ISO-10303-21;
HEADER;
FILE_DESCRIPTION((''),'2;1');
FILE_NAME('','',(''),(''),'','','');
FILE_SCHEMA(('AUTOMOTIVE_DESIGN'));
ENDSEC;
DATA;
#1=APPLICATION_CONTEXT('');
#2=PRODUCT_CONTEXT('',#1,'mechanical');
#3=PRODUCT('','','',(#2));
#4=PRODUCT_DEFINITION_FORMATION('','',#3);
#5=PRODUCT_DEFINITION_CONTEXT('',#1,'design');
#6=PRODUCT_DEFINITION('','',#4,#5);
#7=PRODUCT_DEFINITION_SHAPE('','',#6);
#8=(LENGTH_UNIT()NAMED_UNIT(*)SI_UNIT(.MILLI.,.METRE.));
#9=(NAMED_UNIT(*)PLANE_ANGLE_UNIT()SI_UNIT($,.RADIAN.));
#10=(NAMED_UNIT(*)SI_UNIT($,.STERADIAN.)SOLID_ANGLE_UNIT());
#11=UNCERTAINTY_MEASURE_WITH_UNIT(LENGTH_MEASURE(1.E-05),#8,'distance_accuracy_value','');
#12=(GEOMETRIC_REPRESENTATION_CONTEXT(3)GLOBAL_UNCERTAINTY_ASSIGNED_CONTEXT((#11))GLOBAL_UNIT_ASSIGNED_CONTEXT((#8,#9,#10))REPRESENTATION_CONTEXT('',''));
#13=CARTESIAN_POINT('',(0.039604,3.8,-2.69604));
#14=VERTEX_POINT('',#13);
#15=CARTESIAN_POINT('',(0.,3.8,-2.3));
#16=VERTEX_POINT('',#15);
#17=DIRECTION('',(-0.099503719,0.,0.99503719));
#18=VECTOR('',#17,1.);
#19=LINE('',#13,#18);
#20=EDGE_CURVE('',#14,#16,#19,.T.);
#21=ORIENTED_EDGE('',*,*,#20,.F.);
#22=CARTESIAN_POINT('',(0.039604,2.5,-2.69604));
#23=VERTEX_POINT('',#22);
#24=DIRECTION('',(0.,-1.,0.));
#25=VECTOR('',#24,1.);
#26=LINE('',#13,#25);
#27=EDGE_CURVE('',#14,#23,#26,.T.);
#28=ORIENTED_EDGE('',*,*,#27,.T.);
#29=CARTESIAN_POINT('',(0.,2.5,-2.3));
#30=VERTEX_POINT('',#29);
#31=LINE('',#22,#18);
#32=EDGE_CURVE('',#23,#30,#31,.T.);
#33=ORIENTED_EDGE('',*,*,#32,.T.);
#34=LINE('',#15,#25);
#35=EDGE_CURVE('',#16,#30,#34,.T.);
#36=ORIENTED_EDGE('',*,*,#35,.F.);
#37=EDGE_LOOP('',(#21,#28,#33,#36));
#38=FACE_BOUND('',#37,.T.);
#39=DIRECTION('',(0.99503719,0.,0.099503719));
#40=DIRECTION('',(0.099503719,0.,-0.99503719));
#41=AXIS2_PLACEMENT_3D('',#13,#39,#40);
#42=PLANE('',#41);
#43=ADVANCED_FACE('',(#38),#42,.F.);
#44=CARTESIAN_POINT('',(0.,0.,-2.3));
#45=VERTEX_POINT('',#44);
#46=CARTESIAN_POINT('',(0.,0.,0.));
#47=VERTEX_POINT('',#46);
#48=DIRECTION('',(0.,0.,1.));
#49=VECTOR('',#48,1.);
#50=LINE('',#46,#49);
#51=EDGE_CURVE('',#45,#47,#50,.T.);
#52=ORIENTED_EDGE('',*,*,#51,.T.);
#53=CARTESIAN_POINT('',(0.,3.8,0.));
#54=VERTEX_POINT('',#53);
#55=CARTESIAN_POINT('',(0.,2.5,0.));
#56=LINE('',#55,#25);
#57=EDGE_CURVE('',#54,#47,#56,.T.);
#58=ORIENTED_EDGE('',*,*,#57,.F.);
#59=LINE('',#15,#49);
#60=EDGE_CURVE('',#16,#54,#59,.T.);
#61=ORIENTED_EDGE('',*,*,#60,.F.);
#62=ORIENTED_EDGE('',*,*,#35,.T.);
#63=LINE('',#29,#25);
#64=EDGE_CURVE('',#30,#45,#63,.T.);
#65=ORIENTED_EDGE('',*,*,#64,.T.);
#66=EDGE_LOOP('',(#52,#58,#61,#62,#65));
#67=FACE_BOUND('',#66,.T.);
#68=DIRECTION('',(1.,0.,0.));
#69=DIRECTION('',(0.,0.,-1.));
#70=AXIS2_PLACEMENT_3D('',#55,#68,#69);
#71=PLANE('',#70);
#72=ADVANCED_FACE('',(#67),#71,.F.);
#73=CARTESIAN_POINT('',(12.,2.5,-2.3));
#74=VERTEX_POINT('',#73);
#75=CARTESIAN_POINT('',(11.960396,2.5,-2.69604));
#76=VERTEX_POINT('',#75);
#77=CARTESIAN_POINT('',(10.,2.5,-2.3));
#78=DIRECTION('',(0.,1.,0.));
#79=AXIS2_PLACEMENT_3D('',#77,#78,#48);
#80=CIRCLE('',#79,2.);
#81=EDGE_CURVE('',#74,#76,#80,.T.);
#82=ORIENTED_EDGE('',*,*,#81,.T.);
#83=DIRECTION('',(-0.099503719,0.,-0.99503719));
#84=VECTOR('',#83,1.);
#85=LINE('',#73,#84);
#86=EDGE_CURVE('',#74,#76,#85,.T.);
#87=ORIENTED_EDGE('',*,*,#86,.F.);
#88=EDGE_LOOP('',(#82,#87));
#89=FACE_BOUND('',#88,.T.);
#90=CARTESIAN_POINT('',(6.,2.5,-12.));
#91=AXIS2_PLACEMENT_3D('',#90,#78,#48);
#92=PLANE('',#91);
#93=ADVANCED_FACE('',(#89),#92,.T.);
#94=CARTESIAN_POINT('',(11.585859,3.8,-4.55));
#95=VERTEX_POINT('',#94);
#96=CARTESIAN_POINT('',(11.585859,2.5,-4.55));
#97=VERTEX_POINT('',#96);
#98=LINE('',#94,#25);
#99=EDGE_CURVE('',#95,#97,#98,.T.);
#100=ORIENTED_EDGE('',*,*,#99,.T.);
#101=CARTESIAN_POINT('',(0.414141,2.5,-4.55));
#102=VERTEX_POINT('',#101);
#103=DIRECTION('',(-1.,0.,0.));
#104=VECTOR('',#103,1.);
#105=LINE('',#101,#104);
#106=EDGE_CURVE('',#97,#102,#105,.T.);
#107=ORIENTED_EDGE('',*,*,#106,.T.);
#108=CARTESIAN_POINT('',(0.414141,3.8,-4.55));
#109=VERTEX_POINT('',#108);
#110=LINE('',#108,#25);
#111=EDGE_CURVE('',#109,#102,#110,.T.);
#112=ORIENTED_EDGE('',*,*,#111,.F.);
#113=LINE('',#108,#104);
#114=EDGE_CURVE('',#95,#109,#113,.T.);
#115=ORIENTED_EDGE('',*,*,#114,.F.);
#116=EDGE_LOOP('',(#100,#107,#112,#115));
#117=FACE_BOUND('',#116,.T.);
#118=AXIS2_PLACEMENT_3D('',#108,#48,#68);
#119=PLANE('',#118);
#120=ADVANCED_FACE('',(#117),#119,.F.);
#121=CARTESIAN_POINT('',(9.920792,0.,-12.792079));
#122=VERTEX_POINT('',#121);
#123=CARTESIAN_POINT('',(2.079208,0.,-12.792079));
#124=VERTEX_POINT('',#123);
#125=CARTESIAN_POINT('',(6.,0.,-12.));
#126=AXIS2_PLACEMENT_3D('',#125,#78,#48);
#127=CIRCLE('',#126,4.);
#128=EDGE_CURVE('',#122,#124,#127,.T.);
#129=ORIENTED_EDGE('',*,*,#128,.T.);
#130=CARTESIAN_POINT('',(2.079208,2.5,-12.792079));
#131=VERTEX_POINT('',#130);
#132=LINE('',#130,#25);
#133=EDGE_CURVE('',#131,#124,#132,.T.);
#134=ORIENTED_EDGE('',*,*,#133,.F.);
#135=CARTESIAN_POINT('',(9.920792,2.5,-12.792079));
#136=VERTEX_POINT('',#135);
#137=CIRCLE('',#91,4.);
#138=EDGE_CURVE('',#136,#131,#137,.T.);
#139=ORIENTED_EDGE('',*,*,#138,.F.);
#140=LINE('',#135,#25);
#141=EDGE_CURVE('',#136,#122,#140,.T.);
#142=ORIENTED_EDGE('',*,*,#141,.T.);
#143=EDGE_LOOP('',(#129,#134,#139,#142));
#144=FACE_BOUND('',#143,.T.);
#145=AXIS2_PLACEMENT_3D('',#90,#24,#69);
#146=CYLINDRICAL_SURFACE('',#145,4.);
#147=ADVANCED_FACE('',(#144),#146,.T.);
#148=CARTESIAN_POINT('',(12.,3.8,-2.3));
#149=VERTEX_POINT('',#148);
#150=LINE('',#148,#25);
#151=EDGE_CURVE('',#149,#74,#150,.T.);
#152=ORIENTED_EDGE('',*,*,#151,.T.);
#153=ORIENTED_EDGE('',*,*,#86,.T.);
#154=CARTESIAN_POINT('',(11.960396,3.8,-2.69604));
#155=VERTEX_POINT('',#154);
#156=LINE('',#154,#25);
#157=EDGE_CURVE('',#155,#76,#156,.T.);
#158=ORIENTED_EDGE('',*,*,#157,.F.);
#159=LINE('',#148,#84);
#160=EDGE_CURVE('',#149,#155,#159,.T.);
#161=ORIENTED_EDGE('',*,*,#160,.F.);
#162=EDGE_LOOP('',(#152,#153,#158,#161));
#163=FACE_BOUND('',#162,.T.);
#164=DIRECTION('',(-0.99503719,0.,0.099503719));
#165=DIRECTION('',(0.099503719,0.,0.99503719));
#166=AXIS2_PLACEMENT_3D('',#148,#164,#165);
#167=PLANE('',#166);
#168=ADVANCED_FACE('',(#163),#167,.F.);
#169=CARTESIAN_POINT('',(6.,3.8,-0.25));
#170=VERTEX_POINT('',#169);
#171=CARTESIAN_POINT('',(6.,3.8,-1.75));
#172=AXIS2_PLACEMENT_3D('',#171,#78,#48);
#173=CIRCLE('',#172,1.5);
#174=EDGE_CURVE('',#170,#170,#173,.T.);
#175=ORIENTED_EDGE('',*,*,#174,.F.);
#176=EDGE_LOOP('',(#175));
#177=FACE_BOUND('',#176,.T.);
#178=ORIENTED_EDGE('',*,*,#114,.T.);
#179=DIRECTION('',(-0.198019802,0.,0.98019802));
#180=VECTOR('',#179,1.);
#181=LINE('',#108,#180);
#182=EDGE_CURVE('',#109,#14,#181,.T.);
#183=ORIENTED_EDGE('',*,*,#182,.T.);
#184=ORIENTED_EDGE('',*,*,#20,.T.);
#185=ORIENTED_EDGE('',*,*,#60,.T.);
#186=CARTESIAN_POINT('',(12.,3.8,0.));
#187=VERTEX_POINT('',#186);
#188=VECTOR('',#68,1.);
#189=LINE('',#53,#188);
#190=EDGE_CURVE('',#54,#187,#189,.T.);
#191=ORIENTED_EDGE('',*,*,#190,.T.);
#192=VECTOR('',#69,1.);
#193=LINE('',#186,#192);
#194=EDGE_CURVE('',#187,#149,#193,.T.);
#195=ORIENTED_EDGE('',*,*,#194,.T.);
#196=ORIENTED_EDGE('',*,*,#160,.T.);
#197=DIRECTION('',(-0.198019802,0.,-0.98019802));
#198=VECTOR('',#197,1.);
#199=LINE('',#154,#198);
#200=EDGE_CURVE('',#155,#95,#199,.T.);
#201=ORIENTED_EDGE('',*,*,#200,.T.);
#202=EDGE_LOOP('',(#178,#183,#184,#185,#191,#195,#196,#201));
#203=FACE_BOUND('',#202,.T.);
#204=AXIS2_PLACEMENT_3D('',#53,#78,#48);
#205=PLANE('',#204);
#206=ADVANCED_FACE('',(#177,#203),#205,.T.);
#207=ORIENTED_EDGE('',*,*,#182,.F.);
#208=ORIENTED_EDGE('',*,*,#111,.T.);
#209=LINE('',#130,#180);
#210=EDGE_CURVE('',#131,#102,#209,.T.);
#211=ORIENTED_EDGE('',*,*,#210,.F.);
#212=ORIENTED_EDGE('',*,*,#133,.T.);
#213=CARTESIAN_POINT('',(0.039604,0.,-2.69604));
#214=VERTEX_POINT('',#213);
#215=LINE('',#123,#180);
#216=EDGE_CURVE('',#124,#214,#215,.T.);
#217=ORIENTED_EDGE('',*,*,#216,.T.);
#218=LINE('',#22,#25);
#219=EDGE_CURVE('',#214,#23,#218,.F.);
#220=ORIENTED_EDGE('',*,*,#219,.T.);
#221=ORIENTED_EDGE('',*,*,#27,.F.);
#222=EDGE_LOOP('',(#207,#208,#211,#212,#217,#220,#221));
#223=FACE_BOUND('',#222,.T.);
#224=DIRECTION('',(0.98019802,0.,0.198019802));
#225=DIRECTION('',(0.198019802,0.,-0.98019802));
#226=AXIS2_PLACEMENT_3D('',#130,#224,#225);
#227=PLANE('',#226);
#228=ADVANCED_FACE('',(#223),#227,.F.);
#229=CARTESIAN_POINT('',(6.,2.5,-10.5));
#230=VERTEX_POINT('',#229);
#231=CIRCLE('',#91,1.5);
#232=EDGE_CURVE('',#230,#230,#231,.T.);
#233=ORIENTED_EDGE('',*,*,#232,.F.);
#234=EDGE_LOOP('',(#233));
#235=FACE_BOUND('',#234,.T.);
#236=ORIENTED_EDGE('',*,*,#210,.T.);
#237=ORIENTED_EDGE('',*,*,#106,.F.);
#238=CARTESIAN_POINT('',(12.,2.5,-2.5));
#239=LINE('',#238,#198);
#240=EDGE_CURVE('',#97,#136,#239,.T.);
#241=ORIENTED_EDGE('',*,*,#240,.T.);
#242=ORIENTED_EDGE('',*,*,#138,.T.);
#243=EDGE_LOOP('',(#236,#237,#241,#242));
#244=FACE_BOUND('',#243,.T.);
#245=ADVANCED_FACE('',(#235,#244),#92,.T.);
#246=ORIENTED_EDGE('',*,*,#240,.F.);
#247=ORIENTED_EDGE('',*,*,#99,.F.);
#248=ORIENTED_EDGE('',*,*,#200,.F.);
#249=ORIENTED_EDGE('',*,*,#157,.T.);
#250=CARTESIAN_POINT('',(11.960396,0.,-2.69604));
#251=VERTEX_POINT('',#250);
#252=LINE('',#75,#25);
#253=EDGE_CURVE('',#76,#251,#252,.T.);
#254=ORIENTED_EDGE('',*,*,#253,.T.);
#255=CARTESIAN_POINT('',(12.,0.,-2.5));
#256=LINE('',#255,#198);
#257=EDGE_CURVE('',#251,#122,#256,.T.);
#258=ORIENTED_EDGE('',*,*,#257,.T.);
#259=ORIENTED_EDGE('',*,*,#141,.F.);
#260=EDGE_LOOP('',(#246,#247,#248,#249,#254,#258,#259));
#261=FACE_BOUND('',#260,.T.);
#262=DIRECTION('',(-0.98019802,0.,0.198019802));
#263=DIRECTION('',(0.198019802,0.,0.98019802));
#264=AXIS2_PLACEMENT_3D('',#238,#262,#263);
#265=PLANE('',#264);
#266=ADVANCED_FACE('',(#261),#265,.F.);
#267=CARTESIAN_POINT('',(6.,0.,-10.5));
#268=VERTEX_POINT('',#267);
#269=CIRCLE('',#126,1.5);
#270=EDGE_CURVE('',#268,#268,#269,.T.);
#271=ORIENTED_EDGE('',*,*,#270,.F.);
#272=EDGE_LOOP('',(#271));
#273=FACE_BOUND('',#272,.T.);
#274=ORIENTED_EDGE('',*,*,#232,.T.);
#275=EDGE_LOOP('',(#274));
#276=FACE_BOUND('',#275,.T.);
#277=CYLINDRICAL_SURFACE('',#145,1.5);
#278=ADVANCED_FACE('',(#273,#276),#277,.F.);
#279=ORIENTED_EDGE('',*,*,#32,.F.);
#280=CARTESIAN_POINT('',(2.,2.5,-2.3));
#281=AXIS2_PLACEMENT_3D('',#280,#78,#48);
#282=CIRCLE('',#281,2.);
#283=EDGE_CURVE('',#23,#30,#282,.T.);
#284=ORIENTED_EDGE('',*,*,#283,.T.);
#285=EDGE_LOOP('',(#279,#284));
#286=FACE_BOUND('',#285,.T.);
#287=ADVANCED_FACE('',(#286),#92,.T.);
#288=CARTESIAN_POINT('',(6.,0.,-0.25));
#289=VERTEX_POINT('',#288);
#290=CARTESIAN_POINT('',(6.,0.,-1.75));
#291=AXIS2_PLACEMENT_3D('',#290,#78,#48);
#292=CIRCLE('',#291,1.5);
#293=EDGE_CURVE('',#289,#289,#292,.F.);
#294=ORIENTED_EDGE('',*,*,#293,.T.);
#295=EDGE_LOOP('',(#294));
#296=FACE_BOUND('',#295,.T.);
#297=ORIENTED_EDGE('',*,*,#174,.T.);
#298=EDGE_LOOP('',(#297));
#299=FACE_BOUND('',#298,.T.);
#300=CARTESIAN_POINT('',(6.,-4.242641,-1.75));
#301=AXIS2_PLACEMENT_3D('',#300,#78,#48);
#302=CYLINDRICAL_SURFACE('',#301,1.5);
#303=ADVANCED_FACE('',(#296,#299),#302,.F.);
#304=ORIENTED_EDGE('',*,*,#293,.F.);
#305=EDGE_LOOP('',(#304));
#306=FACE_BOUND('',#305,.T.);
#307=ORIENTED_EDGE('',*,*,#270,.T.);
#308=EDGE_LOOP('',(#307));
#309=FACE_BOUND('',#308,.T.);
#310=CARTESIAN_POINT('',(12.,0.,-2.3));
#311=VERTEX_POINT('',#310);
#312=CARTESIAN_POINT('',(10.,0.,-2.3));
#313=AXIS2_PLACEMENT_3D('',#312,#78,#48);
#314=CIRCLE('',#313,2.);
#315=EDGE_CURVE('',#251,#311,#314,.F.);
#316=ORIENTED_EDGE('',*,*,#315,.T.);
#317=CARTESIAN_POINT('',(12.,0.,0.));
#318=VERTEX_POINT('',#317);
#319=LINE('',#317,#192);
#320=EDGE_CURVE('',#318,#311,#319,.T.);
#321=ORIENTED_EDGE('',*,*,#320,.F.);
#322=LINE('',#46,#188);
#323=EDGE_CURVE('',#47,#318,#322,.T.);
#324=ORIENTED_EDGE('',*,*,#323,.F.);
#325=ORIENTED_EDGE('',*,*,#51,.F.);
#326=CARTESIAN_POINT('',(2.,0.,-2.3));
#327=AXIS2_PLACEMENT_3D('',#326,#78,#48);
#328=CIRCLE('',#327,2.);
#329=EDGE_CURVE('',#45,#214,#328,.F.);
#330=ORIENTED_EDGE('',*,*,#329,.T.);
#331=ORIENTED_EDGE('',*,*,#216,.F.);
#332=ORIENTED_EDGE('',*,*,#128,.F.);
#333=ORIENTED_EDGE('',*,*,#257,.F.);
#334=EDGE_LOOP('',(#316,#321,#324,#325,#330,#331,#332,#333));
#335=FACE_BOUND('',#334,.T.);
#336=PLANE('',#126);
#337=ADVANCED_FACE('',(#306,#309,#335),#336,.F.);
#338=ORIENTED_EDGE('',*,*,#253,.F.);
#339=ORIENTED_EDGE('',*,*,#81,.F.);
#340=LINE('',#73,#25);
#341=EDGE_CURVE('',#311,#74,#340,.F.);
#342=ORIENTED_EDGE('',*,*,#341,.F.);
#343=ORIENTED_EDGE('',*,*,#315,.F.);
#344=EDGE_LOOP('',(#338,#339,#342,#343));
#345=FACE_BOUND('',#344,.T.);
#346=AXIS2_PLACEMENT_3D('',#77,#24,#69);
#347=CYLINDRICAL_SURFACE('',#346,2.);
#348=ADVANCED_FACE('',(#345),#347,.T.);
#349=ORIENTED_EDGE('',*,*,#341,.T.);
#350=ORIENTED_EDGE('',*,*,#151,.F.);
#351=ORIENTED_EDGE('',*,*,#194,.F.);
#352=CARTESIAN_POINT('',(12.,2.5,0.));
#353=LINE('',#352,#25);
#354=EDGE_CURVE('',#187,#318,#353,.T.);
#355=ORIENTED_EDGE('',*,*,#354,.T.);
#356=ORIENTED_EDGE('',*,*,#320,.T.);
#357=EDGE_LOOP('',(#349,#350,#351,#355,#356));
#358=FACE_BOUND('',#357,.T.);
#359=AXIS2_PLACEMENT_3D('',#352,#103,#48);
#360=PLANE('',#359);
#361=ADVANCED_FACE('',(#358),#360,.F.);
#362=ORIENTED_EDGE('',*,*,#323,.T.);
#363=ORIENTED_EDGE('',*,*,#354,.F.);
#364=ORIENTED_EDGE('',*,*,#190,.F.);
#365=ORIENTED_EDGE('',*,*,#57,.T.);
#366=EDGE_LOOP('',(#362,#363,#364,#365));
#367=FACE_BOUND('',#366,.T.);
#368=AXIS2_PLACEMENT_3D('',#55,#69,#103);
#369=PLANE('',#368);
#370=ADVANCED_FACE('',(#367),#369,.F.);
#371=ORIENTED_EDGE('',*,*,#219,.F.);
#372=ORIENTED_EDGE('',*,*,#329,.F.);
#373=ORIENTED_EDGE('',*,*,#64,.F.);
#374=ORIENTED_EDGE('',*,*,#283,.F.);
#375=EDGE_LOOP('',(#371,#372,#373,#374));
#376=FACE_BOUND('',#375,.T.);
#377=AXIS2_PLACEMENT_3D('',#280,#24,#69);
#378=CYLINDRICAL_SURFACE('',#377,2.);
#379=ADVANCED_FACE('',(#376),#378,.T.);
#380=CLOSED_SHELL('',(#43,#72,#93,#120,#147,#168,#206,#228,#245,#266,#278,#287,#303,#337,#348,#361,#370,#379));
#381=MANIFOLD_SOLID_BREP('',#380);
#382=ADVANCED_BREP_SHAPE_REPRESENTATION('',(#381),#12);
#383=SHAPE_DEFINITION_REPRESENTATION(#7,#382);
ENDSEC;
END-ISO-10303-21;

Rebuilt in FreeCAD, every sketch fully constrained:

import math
import FreeCAD as App
import Part
import Sketcher
from FreeCAD import Vector
Q = App.Units.Quantity


def edges_at(feature, points):
    """Names of the edges that pass closest to the given points."""
    edges = feature.Shape.Edges
    near = lambda p: min(range(len(edges)), key=lambda i: edges[i].distToShape(Part.Vertex(*p))[0])
    return sorted({f"Edge{near(p) + 1}" for p in points})


def add_polygon(sketch, points):
    """Adds a closed chain of lines whose ends are joined by coincident constraints."""
    first, n = sketch.GeometryCount, len(points)
    for a, b in zip(points, points[1:] + points[:1]):
        sketch.addGeometry(Part.LineSegment(App.Vector(*a, 0), App.Vector(*b, 0)), False)
    for i in range(n):
        sketch.addConstraint(Sketcher.Constraint("Coincident", first + i, 2, first + (i + 1) % n, 1))

doc = App.newDocument("Part")
params = doc.addObject("Spreadsheet::Sheet", "Params")
for row, (alias, value) in enumerate([
    ("sketch1_diameter", "3 mm"),
    ("sketch1_radius", "4 mm"),
    ("sketch1_width", "12 mm"),
    ("sketch1_height", "2.5 mm"),
    ("pad1_length", "2.5 mm"),
    ("fillet_radius", "2 mm"),
    ("sketch2_width", "12 mm"),
    ("sketch2_height", "2.3 mm"),
    ("pad2_length", "1.3 mm"),
    ("sketch3_diameter", "3 mm"),
    ("pocket1_length", "3.8 mm"),
], start=1):
    params.set(f"A{row}", alias)
    params.set(f"B{row}", "=" + value)
    params.setAlias(f"B{row}", alias)

body = doc.addObject("PartDesign::Body", "Body")

sketch1 = doc.addObject("Sketcher::SketchObject", "Sketch")
body.addObject(sketch1)
sketch1.AttachmentSupport = (doc.XZ_Plane, [""])
sketch1.MapMode = "FlatFace"
sketch1.addGeometry([
    Part.LineSegment(Vector(2.1, -12.8, 0), Vector(0, -2.5, 0)),
    Part.LineSegment(Vector(0, -2.5, 0), Vector(0, 0, 0)),
    Part.LineSegment(Vector(0, 0, 0), Vector(12, 0, 0)),
    Part.LineSegment(Vector(12, 0, 0), Vector(12, -2.5, 0)),
    Part.LineSegment(Vector(12, -2.5, 0), Vector(9.9, -12.8, 0)),
    Part.ArcOfCircle(Part.Circle(Vector(6, -12, 0), Vector(0, 0, 1), 4), math.radians(-169), math.radians(-11)),
    Part.Circle(Vector(6, -12, 0), Vector(0, 0, 1), 1.5),
], False)
sketch1.addConstraint([
    Sketcher.Constraint("Coincident", 0, 2, 1, 1),
    Sketcher.Constraint("Coincident", 1, 2, 2, 1),
    Sketcher.Constraint("Coincident", 2, 2, 3, 1),
    Sketcher.Constraint("Coincident", 3, 2, 4, 1),
    Sketcher.Constraint("Tangent", 4, 2, 5, 2),
    Sketcher.Constraint("Tangent", 5, 1, 0, 1),
    Sketcher.Constraint("Vertical", 1),
    Sketcher.Constraint("Horizontal", 2),
    Sketcher.Constraint("Vertical", 3),
    Sketcher.Constraint("Coincident", 1, 2, -1, 1),
    Sketcher.Constraint("Coincident", 6, 3, 5, 3),
    Sketcher.Constraint("Horizontal", 0, 2, 3, 2),
    Sketcher.Constraint("Horizontal", 4, 2, 5, 1),
    Sketcher.Constraint("Diameter", 6, Q("3 mm")),
    Sketcher.Constraint("Radius", 5, Q("4 mm")),
    Sketcher.Constraint("DistanceX", 2, 1, 2, 2, Q("12 mm")),
    Sketcher.Constraint("DistanceY", 1, 1, 1, 2, Q("2.5 mm")),
    Sketcher.Constraint("DistanceY", 5, 3, -1, 1, Q("12 mm")),
])
sketch1.setExpression("Constraints[13]", "Params.sketch1_diameter")
sketch1.setExpression("Constraints[14]", "Params.sketch1_radius")
sketch1.setExpression("Constraints[15]", "Params.sketch1_width")
sketch1.setExpression("Constraints[16]", "Params.sketch1_height")
pad1 = doc.addObject("PartDesign::Pad", "Pad")
body.addObject(pad1)
pad1.Profile = sketch1
pad1.setExpression("Length", "Params.pad1_length")
pad1.Reversed = True
doc.recompute()

fillet = doc.addObject("PartDesign::Fillet", "Fillet")
body.addObject(fillet)
fillet.Base = (pad1, edges_at(pad1, [(0, 1.25, -2.5), (12, 1.25, -2.5)]))
fillet.setExpression("Radius", "Params.fillet_radius")

sketch2 = doc.addObject("Sketcher::SketchObject", "Sketch001")
body.addObject(sketch2)
sketch2.AttachmentSupport = (doc.XZ_Plane, [""])
sketch2.MapMode = "FlatFace"
sketch2.AttachmentOffset = App.Placement(Vector(0, 0, -2.5), App.Rotation())
add_polygon(sketch2, [(11.59, -4.55), (0.41, -4.55), (0.04, -2.7), (0, -2.3), (0, 0), (12, 0), (12, -2.3), (11.96, -2.7)])
sketch2.addConstraint([
    Sketcher.Constraint("Horizontal", 0),
    Sketcher.Constraint("Vertical", 3),
    Sketcher.Constraint("Horizontal", 4),
    Sketcher.Constraint("Vertical", 5),
    Sketcher.Constraint("Coincident", 3, 2, -1, 1),
    Sketcher.Constraint("Horizontal", 2, 2, 5, 2),
    Sketcher.Constraint("Horizontal", 1, 2, 6, 2),
    Sketcher.Constraint("Equal", 2, 6),
    Sketcher.Constraint("Equal", 1, 7),
    Sketcher.Constraint("DistanceX", 4, 1, 4, 2, Q("12 mm")),
    Sketcher.Constraint("DistanceY", 3, 1, 3, 2, Q("2.3 mm")),
    Sketcher.Constraint("DistanceY", 0, 2, -1, 1, Q("4.55 mm")),
    Sketcher.Constraint("DistanceX", 0, 2, 0, 1, Q("11.171717 mm")),
    Sketcher.Constraint("DistanceY", 1, 2, -1, 1, Q("2.69604 mm")),
    Sketcher.Constraint("Distance", 1, Q("1.891414 mm")),
])
sketch2.setExpression("Constraints[17]", "Params.sketch2_width")
sketch2.setExpression("Constraints[18]", "Params.sketch2_height")
pad2 = doc.addObject("PartDesign::Pad", "Pad001")
body.addObject(pad2)
pad2.Profile = sketch2
pad2.setExpression("Length", "Params.pad2_length")
pad2.Reversed = True

sketch3 = doc.addObject("Sketcher::SketchObject", "Sketch002")
body.addObject(sketch3)
sketch3.AttachmentSupport = (doc.XZ_Plane, [""])
sketch3.MapMode = "FlatFace"
sketch3.AttachmentOffset = App.Placement(Vector(0, 0, -3.8), App.Rotation())
sketch3.addGeometry(Part.Circle(Vector(6, -1.8, 0), Vector(0, 0, 1), 1.5), False)
sketch3.addConstraint([
    Sketcher.Constraint("Diameter", 0, Q("3 mm")),
    Sketcher.Constraint("DistanceX", -1, 1, 0, 3, Q("6 mm")),
    Sketcher.Constraint("DistanceY", 0, 3, -1, 1, Q("1.75 mm")),
])
sketch3.setExpression("Constraints[0]", "Params.sketch3_diameter")
pocket1 = doc.addObject("PartDesign::Pocket", "Pocket")
body.addObject(pocket1)
pocket1.Profile = sketch3
pocket1.setExpression("Length", "Params.pocket1_length")
pocket1.Reversed = True

doc.recompute()
